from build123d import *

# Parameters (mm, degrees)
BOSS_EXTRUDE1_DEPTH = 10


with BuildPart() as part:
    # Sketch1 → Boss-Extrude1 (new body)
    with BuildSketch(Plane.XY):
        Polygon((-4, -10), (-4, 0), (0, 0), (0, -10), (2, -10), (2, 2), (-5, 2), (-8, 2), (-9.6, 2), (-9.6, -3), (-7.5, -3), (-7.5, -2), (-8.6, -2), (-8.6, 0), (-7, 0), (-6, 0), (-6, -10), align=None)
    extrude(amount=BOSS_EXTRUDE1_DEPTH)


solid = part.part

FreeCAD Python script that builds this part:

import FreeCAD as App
import Part
import Sketcher

V = App.Vector

doc = App.newDocument("Part")
body = doc.addObject("PartDesign::Body", "Body")

# Sketch on XY plane
sketch1 = body.newObject("Sketcher::SketchObject", "Sketch")
sketch1.AttachmentSupport = (doc.getObject("XY_Plane"), [""])
sketch1.MapMode = "FlatFace"
sketch1.addGeometry([
    Part.LineSegment(V(-4, -10, 0), V(-4, 0, 0)),  # 0
    Part.LineSegment(V(-4, 0, 0), V(0, 0, 0)),  # 1
    Part.LineSegment(V(0, 0, 0), V(0, -10, 0)),  # 2
    Part.LineSegment(V(0, -10, 0), V(2, -10, 0)),  # 3
    Part.LineSegment(V(2, -10, 0), V(2, 2, 0)),  # 4
    Part.LineSegment(V(2, 2, 0), V(-9.6, 2, 0)),  # 5
    Part.LineSegment(V(-9.6, 2, 0), V(-9.6, -3, 0)),  # 6
    Part.LineSegment(V(-9.6, -3, 0), V(-7.5, -3, 0)),  # 7
    Part.LineSegment(V(-7.5, -3, 0), V(-7.5, -2, 0)),  # 8
    Part.LineSegment(V(-7.5, -2, 0), V(-8.6, -2, 0)),  # 9
    Part.LineSegment(V(-8.6, -2, 0), V(-8.6, 0, 0)),  # 10
    Part.LineSegment(V(-8.6, 0, 0), V(-6, 0, 0)),  # 11
    Part.LineSegment(V(-6, 0, 0), V(-6, -10, 0)),  # 12
    Part.LineSegment(V(-6, -10, 0), V(-4, -10, 0)),  # 13
], False)
sketch1.addConstraint([
    Sketcher.Constraint("Coincident", 0, 2, 1, 1),
    Sketcher.Constraint("Coincident", 1, 2, 2, 1),
    Sketcher.Constraint("Coincident", 2, 2, 3, 1),
    Sketcher.Constraint("Coincident", 3, 2, 4, 1),
    Sketcher.Constraint("Coincident", 4, 2, 5, 1),
    Sketcher.Constraint("Coincident", 5, 2, 6, 1),
    Sketcher.Constraint("Coincident", 6, 2, 7, 1),
    Sketcher.Constraint("Coincident", 7, 2, 8, 1),
    Sketcher.Constraint("Coincident", 8, 2, 9, 1),
    Sketcher.Constraint("Coincident", 9, 2, 10, 1),
    Sketcher.Constraint("Coincident", 10, 2, 11, 1),
    Sketcher.Constraint("Coincident", 11, 2, 12, 1),
    Sketcher.Constraint("Coincident", 12, 2, 13, 1),
    Sketcher.Constraint("Coincident", 13, 2, 0, 1),
    Sketcher.Constraint("Vertical", 0),
    Sketcher.Constraint("Horizontal", 1),
    Sketcher.Constraint("Vertical", 2),
    Sketcher.Constraint("Horizontal", 3),
    Sketcher.Constraint("Vertical", 4),
    Sketcher.Constraint("Horizontal", 5),
    Sketcher.Constraint("Vertical", 6),
    Sketcher.Constraint("Horizontal", 7),
    Sketcher.Constraint("Vertical", 8),
    Sketcher.Constraint("Horizontal", 9),
    Sketcher.Constraint("Vertical", 10),
    Sketcher.Constraint("Horizontal", 11),
    Sketcher.Constraint("Vertical", 12),
    Sketcher.Constraint("Horizontal", 13),
    Sketcher.Constraint("Coincident", 1, 2, -1, 1),
    Sketcher.Constraint("PointOnObject", 10, 2, -1),
    Sketcher.Constraint("Horizontal", 3, 2, 12, 2),
    Sketcher.Constraint("Equal", 3, 13),
    Sketcher.Constraint("Equal", 13, 10),
    Sketcher.Constraint("DistanceX", 1, 1, 1, 2, 4.0),
    Sketcher.Constraint("DistanceX", 3, 1, 3, 2, 2.0),
    Sketcher.Constraint("DistanceY", 0, 1, 0, 2, 10.0),
    Sketcher.Constraint("DistanceY", 4, 1, 4, 2, 12.0),
    Sketcher.Constraint("DistanceY", 6, 2, 6, 1, 5.0),
    Sketcher.Constraint("DistanceX", 5, 2, 5, 1, 11.6),
    Sketcher.Constraint("DistanceX", 7, 1, 7, 2, 2.1),
    Sketcher.Constraint("DistanceX", 9, 2, 9, 1, 1.1),
])
pad1 = body.newObject("PartDesign::Pad", "Pad")
pad1.Profile = sketch1
pad1.Length = 10

doc.recompute()
